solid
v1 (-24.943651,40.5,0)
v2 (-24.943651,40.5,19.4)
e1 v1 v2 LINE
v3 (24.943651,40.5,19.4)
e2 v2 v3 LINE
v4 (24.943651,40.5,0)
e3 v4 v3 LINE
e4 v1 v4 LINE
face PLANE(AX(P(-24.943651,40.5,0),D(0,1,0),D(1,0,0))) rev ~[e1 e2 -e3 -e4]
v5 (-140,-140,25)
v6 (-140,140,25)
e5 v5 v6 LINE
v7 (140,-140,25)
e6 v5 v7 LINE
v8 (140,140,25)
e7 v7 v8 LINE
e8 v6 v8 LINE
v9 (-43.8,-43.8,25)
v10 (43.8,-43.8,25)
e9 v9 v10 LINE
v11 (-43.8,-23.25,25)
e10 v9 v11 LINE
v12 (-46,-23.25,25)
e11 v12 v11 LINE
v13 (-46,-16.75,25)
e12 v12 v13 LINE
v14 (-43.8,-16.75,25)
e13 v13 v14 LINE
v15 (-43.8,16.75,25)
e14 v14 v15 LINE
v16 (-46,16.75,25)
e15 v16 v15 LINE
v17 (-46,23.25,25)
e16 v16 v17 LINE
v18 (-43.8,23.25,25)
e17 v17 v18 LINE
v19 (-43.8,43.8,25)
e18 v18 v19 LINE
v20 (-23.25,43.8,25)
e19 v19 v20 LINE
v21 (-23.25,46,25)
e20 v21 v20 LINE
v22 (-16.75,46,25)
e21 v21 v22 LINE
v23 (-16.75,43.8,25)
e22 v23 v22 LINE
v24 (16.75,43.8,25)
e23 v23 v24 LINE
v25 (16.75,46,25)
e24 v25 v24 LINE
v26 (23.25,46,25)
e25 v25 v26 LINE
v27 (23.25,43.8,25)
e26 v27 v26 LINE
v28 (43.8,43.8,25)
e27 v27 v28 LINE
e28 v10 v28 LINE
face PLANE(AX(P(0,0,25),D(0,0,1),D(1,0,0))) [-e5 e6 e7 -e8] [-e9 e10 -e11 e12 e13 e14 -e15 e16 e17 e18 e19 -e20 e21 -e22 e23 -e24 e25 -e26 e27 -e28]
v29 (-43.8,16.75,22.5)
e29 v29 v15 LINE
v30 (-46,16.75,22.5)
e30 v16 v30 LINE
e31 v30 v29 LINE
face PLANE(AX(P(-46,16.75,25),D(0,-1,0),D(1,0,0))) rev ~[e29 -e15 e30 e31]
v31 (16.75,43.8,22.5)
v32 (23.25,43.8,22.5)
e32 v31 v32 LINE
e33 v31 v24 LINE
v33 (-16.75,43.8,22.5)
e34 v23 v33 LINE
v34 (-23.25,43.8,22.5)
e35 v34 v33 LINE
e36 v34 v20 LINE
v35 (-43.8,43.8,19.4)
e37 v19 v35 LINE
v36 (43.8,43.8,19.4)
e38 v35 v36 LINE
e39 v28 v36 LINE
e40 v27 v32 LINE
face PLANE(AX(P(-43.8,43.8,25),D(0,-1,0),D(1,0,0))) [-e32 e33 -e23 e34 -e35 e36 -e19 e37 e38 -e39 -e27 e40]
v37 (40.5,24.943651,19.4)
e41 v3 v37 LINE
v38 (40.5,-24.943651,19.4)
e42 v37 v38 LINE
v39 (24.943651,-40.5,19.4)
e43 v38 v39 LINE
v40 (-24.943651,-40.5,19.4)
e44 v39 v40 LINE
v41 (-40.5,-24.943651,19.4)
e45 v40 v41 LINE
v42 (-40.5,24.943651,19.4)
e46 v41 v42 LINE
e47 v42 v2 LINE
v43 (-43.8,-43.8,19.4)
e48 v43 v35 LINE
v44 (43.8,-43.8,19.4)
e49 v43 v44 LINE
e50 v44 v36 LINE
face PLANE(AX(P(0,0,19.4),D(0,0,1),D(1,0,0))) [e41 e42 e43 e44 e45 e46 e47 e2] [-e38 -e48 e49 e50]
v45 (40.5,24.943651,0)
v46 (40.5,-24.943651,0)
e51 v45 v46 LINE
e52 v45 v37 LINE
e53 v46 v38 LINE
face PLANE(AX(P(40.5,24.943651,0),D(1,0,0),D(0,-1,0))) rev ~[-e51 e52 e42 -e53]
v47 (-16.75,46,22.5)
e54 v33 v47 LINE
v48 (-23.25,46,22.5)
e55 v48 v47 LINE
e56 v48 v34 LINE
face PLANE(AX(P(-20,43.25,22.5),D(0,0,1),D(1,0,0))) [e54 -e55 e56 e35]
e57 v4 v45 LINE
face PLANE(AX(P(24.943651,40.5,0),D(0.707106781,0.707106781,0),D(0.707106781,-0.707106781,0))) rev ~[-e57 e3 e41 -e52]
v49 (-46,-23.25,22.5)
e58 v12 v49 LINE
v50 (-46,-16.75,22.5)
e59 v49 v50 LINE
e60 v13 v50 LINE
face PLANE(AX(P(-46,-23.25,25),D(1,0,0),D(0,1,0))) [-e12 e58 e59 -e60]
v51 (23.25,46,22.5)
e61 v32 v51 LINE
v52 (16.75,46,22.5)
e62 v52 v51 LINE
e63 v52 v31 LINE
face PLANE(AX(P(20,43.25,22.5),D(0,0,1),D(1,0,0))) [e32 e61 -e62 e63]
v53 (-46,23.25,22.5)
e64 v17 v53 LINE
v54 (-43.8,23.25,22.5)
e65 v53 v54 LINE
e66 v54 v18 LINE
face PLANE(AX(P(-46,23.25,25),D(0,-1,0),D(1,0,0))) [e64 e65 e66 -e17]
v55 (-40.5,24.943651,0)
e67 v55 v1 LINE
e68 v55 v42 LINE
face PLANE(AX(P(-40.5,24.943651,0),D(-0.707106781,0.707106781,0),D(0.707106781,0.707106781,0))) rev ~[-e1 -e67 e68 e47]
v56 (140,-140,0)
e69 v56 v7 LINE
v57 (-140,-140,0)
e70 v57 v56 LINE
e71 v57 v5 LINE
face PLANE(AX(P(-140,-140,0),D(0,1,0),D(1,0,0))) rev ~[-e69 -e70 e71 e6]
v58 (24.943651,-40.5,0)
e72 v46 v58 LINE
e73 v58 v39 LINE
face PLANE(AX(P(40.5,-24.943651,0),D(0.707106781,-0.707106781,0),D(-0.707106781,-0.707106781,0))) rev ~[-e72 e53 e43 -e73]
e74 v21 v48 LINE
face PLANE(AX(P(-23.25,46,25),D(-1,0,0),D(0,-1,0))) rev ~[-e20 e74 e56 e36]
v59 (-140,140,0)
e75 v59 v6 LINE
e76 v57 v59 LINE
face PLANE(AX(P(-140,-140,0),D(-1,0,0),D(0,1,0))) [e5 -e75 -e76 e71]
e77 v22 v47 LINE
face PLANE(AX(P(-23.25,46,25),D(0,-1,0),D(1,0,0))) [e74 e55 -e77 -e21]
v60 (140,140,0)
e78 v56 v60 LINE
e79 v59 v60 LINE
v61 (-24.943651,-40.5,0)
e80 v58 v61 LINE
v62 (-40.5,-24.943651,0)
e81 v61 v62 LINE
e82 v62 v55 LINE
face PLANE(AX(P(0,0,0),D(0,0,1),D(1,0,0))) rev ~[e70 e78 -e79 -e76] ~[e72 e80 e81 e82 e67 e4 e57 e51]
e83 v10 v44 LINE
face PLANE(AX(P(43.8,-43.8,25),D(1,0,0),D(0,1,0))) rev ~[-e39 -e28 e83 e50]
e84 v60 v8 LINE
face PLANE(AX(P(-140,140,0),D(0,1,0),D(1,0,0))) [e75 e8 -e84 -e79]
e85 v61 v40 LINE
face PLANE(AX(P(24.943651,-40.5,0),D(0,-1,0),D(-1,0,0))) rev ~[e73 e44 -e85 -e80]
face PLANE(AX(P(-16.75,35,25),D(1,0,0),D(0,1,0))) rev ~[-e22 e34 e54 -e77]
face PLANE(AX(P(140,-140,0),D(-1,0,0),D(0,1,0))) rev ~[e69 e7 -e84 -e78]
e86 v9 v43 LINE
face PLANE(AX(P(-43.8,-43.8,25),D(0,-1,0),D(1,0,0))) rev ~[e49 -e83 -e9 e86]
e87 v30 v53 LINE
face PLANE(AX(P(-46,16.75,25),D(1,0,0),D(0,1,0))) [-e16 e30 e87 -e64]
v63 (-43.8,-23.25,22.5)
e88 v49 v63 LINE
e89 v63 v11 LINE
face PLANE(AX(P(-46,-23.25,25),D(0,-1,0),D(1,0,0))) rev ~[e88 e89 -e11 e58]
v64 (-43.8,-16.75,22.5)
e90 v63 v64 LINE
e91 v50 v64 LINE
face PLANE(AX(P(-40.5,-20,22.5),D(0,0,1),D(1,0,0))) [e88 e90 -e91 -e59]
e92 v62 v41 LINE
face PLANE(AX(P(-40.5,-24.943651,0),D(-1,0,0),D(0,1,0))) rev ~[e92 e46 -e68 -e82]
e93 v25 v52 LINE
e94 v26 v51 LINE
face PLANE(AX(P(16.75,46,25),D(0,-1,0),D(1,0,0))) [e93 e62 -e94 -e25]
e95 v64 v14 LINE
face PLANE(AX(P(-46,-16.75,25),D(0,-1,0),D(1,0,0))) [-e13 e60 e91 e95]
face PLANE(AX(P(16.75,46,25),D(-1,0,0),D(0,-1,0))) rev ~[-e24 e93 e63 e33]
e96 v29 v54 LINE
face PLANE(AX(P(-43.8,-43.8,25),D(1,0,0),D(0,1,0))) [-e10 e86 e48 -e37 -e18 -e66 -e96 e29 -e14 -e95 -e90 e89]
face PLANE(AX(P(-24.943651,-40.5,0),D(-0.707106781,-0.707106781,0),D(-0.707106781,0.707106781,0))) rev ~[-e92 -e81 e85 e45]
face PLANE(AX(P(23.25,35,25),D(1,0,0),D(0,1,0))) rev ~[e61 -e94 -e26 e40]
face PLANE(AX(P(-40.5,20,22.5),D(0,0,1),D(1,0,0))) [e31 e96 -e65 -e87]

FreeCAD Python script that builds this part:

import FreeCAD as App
import Part
import Sketcher

doc = App.newDocument("Part")
body = doc.addObject("PartDesign::Body", "Body")

sketch1 = body.newObject("Sketcher::SketchObject", "Sketch")
sketch1.AttachmentSupport = (doc.getObject("XY_Plane"), [""])
sketch1.MapMode = "FlatFace"
sketch1.addGeometry(Part.LineSegment(App.Vector(-140, 140, 0), App.Vector(-140, -140, 0)), False)
sketch1.addGeometry(Part.LineSegment(App.Vector(-140, -140, 0), App.Vector(140, -140, 0)), False)
sketch1.addGeometry(Part.LineSegment(App.Vector(140, -140, 0), App.Vector(140, 140, 0)), False)
sketch1.addGeometry(Part.LineSegment(App.Vector(140, 140, 0), App.Vector(-140, 140, 0)), False)
sketch1.addGeometry(Part.LineSegment(App.Vector(-40.5, -24.943651, 0), App.Vector(-40.5, 24.943651, 0)), False)
sketch1.addGeometry(Part.LineSegment(App.Vector(-40.5, 24.943651, 0), App.Vector(-24.943651, 40.5, 0)), False)
sketch1.addGeometry(Part.LineSegment(App.Vector(-24.943651, 40.5, 0), App.Vector(24.943651, 40.5, 0)), False)
sketch1.addGeometry(Part.LineSegment(App.Vector(24.943651, 40.5, 0), App.Vector(40.5, 24.943651, 0)), False)
sketch1.addGeometry(Part.LineSegment(App.Vector(40.5, 24.943651, 0), App.Vector(40.5, -24.943651, 0)), False)
sketch1.addGeometry(Part.LineSegment(App.Vector(40.5, -24.943651, 0), App.Vector(24.943651, -40.5, 0)), False)
sketch1.addGeometry(Part.LineSegment(App.Vector(24.943651, -40.5, 0), App.Vector(-24.943651, -40.5, 0)), False)
sketch1.addGeometry(Part.LineSegment(App.Vector(-24.943651, -40.5, 0), App.Vector(-40.5, -24.943651, 0)), False)
sketch1.addConstraint(Sketcher.Constraint("Coincident", 0, 2, 1, 1))
sketch1.addConstraint(Sketcher.Constraint("Coincident", 1, 2, 2, 1))
sketch1.addConstraint(Sketcher.Constraint("Coincident", 2, 2, 3, 1))
sketch1.addConstraint(Sketcher.Constraint("Coincident", 3, 2, 0, 1))
sketch1.addConstraint(Sketcher.Constraint("Coincident", 4, 2, 5, 1))
sketch1.addConstraint(Sketcher.Constraint("Coincident", 5, 2, 6, 1))
sketch1.addConstraint(Sketcher.Constraint("Coincident", 6, 2, 7, 1))
sketch1.addConstraint(Sketcher.Constraint("Coincident", 7, 2, 8, 1))
sketch1.addConstraint(Sketcher.Constraint("Coincident", 8, 2, 9, 1))
sketch1.addConstraint(Sketcher.Constraint("Coincident", 9, 2, 10, 1))
sketch1.addConstraint(Sketcher.Constraint("Coincident", 10, 2, 11, 1))
sketch1.addConstraint(Sketcher.Constraint("Coincident", 11, 2, 4, 1))
sketch1.addConstraint(Sketcher.Constraint("Vertical", 0))
sketch1.addConstraint(Sketcher.Constraint("Horizontal", 1))
sketch1.addConstraint(Sketcher.Constraint("Vertical", 2))
sketch1.addConstraint(Sketcher.Constraint("Horizontal", 3))
sketch1.addConstraint(Sketcher.Constraint("Vertical", 4))
sketch1.addConstraint(Sketcher.Constraint("Horizontal", 6))
sketch1.addConstraint(Sketcher.Constraint("Vertical", 8))
sketch1.addConstraint(Sketcher.Constraint("Horizontal", 10))
sketch1.addConstraint(Sketcher.Constraint("Symmetric", 0, 2, 2, 2, -1, 1))
sketch1.addConstraint(Sketcher.Constraint("Symmetric", 4, 2, 8, 2, -1, 1))
sketch1.addConstraint(Sketcher.Constraint("Symmetric", 5, 2, 9, 2, -1, 1))
sketch1.addConstraint(Sketcher.Constraint("Perpendicular", 5, 7))
sketch1.addConstraint(Sketcher.Constraint("Perpendicular", 9, 11))
sketch1.addConstraint(Sketcher.Constraint("Horizontal", 4, 2, 7, 2))
sketch1.addConstraint(Sketcher.Constraint("Horizontal", 8, 2, 11, 2))
sketch1.addConstraint(Sketcher.Constraint("Vertical", 6, 2, 9, 2))
sketch1.addConstraint(Sketcher.Constraint("Equal", 3, 0))
sketch1.addConstraint(Sketcher.Constraint("Equal", 10, 4))
sketch1.addConstraint(Sketcher.Constraint("DistanceX", 1, 1, 1, 2, 280.0))
sketch1.addConstraint(Sketcher.Constraint("Distance", 5, 22.0))
sketch1.addConstraint(Sketcher.Constraint("DistanceX", 4, 2, 7, 2, 81.0))
pad1 = body.newObject("PartDesign::Pad", "Pad")
pad1.Profile = sketch1
pad1.Length = 25

sketch2 = body.newObject("Sketcher::SketchObject", "Sketch001")
sketch2.AttachmentSupport = (doc.getObject("XY_Plane"), [""])
sketch2.MapMode = "FlatFace"
sketch2.AttachmentOffset = App.Placement(App.Vector(0, 0, 25), App.Rotation())
sketch2.addGeometry(Part.LineSegment(App.Vector(-23.25, 46, 0), App.Vector(-23.25, 35, 0)), False)
sketch2.addGeometry(Part.LineSegment(App.Vector(-23.25, 35, 0), App.Vector(-16.75, 35, 0)), False)
sketch2.addGeometry(Part.LineSegment(App.Vector(-16.75, 35, 0), App.Vector(-16.75, 46, 0)), False)
sketch2.addGeometry(Part.LineSegment(App.Vector(-16.75, 46, 0), App.Vector(-23.25, 46, 0)), False)
sketch2.addGeometry(Part.LineSegment(App.Vector(16.75, 46, 0), App.Vector(16.75, 35, 0)), False)
sketch2.addGeometry(Part.LineSegment(App.Vector(16.75, 35, 0), App.Vector(23.25, 35, 0)), False)
sketch2.addGeometry(Part.LineSegment(App.Vector(23.25, 35, 0), App.Vector(23.25, 46, 0)), False)
sketch2.addGeometry(Part.LineSegment(App.Vector(23.25, 46, 0), App.Vector(16.75, 46, 0)), False)
sketch2.addGeometry(Part.LineSegment(App.Vector(-46, 23.25, 0), App.Vector(-46, 16.75, 0)), False)
sketch2.addGeometry(Part.LineSegment(App.Vector(-46, 16.75, 0), App.Vector(-35, 16.75, 0)), False)
sketch2.addGeometry(Part.LineSegment(App.Vector(-35, 16.75, 0), App.Vector(-35, 23.25, 0)), False)
sketch2.addGeometry(Part.LineSegment(App.Vector(-35, 23.25, 0), App.Vector(-46, 23.25, 0)), False)
sketch2.addGeometry(Part.LineSegment(App.Vector(-46, -16.75, 0), App.Vector(-46, -23.25, 0)), False)
sketch2.addGeometry(Part.LineSegment(App.Vector(-46, -23.25, 0), App.Vector(-35, -23.25, 0)), False)
sketch2.addGeometry(Part.LineSegment(App.Vector(-35, -23.25, 0), App.Vector(-35, -16.75, 0)), False)
sketch2.addGeometry(Part.LineSegment(App.Vector(-35, -16.75, 0), App.Vector(-46, -16.75, 0)), False)
sketch2.addConstraint(Sketcher.Constraint("Coincident", 0, 2, 1, 1))
sketch2.addConstraint(Sketcher.Constraint("Coincident", 1, 2, 2, 1))
sketch2.addConstraint(Sketcher.Constraint("Coincident", 2, 2, 3, 1))
sketch2.addConstraint(Sketcher.Constraint("Coincident", 3, 2, 0, 1))
sketch2.addConstraint(Sketcher.Constraint("Coincident", 4, 2, 5, 1))
sketch2.addConstraint(Sketcher.Constraint("Coincident", 5, 2, 6, 1))
sketch2.addConstraint(Sketcher.Constraint("Coincident", 6, 2, 7, 1))
sketch2.addConstraint(Sketcher.Constraint("Coincident", 7, 2, 4, 1))
sketch2.addConstraint(Sketcher.Constraint("Coincident", 8, 2, 9, 1))
sketch2.addConstraint(Sketcher.Constraint("Coincident", 9, 2, 10, 1))
sketch2.addConstraint(Sketcher.Constraint("Coincident", 10, 2, 11, 1))
sketch2.addConstraint(Sketcher.Constraint("Coincident", 11, 2, 8, 1))
sketch2.addConstraint(Sketcher.Constraint("Coincident", 12, 2, 13, 1))
sketch2.addConstraint(Sketcher.Constraint("Coincident", 13, 2, 14, 1))
sketch2.addConstraint(Sketcher.Constraint("Coincident", 14, 2, 15, 1))
sketch2.addConstraint(Sketcher.Constraint("Coincident", 15, 2, 12, 1))
sketch2.addConstraint(Sketcher.Constraint("Vertical", 0))
sketch2.addConstraint(Sketcher.Constraint("Horizontal", 1))
sketch2.addConstraint(Sketcher.Constraint("Vertical", 2))
sketch2.addConstraint(Sketcher.Constraint("Horizontal", 3))
sketch2.addConstraint(Sketcher.Constraint("Vertical", 4))
sketch2.addConstraint(Sketcher.Constraint("Horizontal", 5))
sketch2.addConstraint(Sketcher.Constraint("Vertical", 6))
sketch2.addConstraint(Sketcher.Constraint("Horizontal", 7))
sketch2.addConstraint(Sketcher.Constraint("Vertical", 8))
sketch2.addConstraint(Sketcher.Constraint("Horizontal", 9))
sketch2.addConstraint(Sketcher.Constraint("Vertical", 10))
sketch2.addConstraint(Sketcher.Constraint("Horizontal", 11))
sketch2.addConstraint(Sketcher.Constraint("Vertical", 12))
sketch2.addConstraint(Sketcher.Constraint("Horizontal", 13))
sketch2.addConstraint(Sketcher.Constraint("Vertical", 14))
sketch2.addConstraint(Sketcher.Constraint("Horizontal", 15))
sketch2.addConstraint(Sketcher.Constraint("Symmetric", 1, 2, 4, 2, -2))
sketch2.addConstraint(Sketcher.Constraint("Symmetric", 3, 2, 6, 2, -2))
sketch2.addConstraint(Sketcher.Constraint("Symmetric", 11, 2, 12, 2, -1))
sketch2.addConstraint(Sketcher.Constraint("Symmetric", 9, 2, 14, 2, -1))
sketch2.addConstraint(Sketcher.Constraint("Equal", 15, 0))
sketch2.addConstraint(Sketcher.Constraint("Equal", 7, 8))
sketch2.addConstraint(Sketcher.Constraint("DistanceX", 9, 1, 9, 2, 11.0))
sketch2.addConstraint(Sketcher.Constraint("DistanceX", 1, 1, 1, 2, 6.5))
sketch2.addConstraint(Sketcher.Constraint("DistanceY", -1, 1, 0, 2, 35.0))
sketch2.addConstraint(Sketcher.Constraint("DistanceX", 8, 2, -1, 1, 46.0))
sketch2.addConstraint(Sketcher.Constraint("DistanceX", 0, 2, 4, 2, 40.0))
sketch2.addConstraint(Sketcher.Constraint("DistanceY", 12, 2, 8, 2, 40.0))
pocket1 = body.newObject("PartDesign::Pocket", "Pocket")
pocket1.Profile = sketch2
pocket1.Length = 2.5

sketch3 = body.newObject("Sketcher::SketchObject", "Sketch002")
sketch3.AttachmentSupport = (doc.getObject("XY_Plane"), [""])
sketch3.MapMode = "FlatFace"
sketch3.AttachmentOffset = App.Placement(App.Vector(0, 0, 25), App.Rotation())
sketch3.addGeometry(Part.LineSegment(App.Vector(-43.8, 43.8, 0), App.Vector(-43.8, -43.8, 0)), False)
sketch3.addGeometry(Part.LineSegment(App.Vector(-43.8, -43.8, 0), App.Vector(43.8, -43.8, 0)), False)
sketch3.addGeometry(Part.LineSegment(App.Vector(43.8, -43.8, 0), App.Vector(43.8, 43.8, 0)), False)
sketch3.addGeometry(Part.LineSegment(App.Vector(43.8, 43.8, 0), App.Vector(-43.8, 43.8, 0)), False)
sketch3.addConstraint(Sketcher.Constraint("Coincident", 0, 2, 1, 1))
sketch3.addConstraint(Sketcher.Constraint("Coincident", 1, 2, 2, 1))
sketch3.addConstraint(Sketcher.Constraint("Coincident", 2, 2, 3, 1))
sketch3.addConstraint(Sketcher.Constraint("Coincident", 3, 2, 0, 1))
sketch3.addConstraint(Sketcher.Constraint("Vertical", 0))
sketch3.addConstraint(Sketcher.Constraint("Horizontal", 1))
sketch3.addConstraint(Sketcher.Constraint("Vertical", 2))
sketch3.addConstraint(Sketcher.Constraint("Horizontal", 3))
sketch3.addConstraint(Sketcher.Constraint("Symmetric", 0, 2, 2, 2, -1, 1))
sketch3.addConstraint(Sketcher.Constraint("Equal", 3, 0))
sketch3.addConstraint(Sketcher.Constraint("DistanceX", 1, 1, 1, 2, 87.6))
pocket2 = body.newObject("PartDesign::Pocket", "Pocket001")
pocket2.Profile = sketch3
pocket2.Length = 5.6

doc.recompute()
